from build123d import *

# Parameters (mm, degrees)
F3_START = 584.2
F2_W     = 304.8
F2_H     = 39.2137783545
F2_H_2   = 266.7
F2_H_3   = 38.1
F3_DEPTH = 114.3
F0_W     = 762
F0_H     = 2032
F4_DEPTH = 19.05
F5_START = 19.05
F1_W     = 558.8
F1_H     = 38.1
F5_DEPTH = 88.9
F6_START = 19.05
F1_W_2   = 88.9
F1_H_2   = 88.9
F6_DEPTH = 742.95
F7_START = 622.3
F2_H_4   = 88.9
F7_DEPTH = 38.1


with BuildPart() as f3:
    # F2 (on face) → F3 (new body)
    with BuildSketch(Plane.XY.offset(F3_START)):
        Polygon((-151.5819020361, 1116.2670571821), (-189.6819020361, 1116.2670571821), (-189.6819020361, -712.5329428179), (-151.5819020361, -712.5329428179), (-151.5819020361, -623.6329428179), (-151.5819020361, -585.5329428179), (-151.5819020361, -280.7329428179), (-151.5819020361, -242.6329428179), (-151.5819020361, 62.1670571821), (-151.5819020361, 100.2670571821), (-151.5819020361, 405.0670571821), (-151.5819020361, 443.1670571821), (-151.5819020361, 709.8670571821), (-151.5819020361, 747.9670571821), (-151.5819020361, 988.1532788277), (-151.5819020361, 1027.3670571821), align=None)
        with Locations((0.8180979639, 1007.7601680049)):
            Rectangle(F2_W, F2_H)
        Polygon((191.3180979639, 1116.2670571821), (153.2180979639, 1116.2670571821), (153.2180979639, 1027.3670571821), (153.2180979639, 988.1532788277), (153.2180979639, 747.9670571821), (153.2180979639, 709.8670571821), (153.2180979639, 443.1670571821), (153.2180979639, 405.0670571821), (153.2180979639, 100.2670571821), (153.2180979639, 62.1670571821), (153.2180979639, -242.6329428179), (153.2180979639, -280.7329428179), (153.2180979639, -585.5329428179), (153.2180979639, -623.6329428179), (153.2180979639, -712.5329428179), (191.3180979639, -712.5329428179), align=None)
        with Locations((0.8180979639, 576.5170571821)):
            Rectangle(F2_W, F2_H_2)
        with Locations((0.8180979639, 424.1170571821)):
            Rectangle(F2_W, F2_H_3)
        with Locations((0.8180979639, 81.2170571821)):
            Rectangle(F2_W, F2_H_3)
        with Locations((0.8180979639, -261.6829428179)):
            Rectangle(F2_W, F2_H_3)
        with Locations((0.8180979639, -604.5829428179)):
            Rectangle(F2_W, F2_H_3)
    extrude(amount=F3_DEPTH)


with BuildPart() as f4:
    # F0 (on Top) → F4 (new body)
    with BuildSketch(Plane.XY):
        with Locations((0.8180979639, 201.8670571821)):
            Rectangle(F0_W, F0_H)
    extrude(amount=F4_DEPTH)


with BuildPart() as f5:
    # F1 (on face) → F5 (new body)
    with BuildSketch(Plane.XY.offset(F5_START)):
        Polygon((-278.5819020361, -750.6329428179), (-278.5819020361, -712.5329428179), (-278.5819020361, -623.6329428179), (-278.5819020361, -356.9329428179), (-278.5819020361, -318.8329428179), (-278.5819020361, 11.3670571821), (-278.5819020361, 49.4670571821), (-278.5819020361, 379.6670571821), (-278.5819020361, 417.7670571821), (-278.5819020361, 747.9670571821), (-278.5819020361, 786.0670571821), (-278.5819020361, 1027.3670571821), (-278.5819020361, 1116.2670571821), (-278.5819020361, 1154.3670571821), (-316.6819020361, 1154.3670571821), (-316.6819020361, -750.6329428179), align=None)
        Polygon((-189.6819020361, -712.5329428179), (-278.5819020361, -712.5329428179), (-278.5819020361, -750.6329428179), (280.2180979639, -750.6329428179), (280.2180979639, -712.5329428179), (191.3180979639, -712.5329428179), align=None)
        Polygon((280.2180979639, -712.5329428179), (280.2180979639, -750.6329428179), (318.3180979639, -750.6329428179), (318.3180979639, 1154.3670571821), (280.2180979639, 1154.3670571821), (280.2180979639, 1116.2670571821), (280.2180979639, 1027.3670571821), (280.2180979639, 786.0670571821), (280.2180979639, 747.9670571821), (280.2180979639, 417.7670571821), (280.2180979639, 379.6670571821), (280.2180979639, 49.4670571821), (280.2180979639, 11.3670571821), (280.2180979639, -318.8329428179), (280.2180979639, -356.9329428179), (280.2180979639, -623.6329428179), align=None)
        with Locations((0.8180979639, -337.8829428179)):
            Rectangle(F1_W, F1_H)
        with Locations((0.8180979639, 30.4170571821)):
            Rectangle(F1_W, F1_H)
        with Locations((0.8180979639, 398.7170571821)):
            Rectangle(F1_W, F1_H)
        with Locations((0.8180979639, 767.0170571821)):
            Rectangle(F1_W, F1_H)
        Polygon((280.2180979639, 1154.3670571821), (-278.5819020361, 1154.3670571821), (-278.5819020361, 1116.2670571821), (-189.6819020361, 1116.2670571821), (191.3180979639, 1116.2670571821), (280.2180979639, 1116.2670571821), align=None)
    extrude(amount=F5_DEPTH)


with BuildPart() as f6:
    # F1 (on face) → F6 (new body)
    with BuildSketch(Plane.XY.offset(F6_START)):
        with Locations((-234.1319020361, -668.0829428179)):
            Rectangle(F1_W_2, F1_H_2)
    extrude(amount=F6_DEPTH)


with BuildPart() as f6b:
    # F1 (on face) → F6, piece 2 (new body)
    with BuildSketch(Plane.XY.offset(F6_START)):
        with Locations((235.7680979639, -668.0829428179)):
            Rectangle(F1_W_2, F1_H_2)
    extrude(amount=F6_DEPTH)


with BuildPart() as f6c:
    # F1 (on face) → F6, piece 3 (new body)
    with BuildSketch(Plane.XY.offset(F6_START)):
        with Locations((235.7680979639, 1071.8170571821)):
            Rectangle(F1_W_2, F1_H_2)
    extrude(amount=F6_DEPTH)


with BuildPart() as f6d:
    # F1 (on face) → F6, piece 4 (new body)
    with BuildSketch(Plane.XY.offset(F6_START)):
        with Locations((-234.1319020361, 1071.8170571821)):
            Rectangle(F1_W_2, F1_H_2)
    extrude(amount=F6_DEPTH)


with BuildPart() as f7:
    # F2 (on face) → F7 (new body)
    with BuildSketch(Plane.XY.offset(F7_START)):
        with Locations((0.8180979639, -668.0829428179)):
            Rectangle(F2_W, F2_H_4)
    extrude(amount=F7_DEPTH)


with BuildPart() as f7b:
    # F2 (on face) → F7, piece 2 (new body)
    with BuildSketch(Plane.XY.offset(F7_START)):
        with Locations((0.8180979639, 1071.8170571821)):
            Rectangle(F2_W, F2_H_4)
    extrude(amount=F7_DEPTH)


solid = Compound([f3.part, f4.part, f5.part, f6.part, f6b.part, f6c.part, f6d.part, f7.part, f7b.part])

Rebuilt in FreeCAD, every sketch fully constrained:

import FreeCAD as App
import Part
import Sketcher

V = App.Vector
Q = App.Units.Quantity


def add_polygon(sketch, points):
    """Adds a closed chain of lines whose ends are joined by coincident constraints."""
    first, n = sketch.GeometryCount, len(points)
    for a, b in zip(points, points[1:] + points[:1]):
        sketch.addGeometry(Part.LineSegment(App.Vector(*a, 0), App.Vector(*b, 0)), False)
    for i in range(n):
        sketch.addConstraint(Sketcher.Constraint("Coincident", first + i, 2, first + (i + 1) % n, 1))

doc = App.newDocument("Part")
params = doc.addObject("Spreadsheet::Sheet", "Params")
for row, (alias, value) in enumerate([
    ("sketch1_width", "12 in"),
    ("sketch1_height", "72 in"),
    ("sketch1_width2", "1.5 in"),
    ("sketch1_height2", "3.5 in"),
    ("pad1_length", "4.5 in"),
    ("sketch2_width", "30 in"),
    ("sketch2_height", "80 in"),
    ("pad2_length", "0.75 in"),
    ("sketch3_width", "25 in"),
    ("sketch3_width2", "22 in"),
    ("sketch3_height", "75 in"),
    ("sketch3_height2", "14 in"),
    ("sketch3_height3", "13 in"),
    ("pad3_length", "3.5 in"),
    ("sketch4_width", "3.5 in"),
    ("pad4_length", "29.25 in"),
    ("sketch5_width", "3.5 in"),
    ("pad5_length", "29.25 in"),
    ("sketch6_width", "3.5 in"),
    ("pad6_length", "29.25 in"),
    ("sketch7_width", "3.5 in"),
    ("pad7_length", "29.25 in"),
    ("sketch8_width", "12 in"),
    ("sketch8_height", "3.5 in"),
    ("pad8_length", "1.5 in"),
    ("sketch9_width", "12 in"),
    ("sketch9_height", "3.5 in"),
    ("pad9_length", "1.5 in"),
], start=1):
    params.set(f"A{row}", alias)
    params.set(f"B{row}", "=" + value)
    params.setAlias(f"B{row}", alias)

body = doc.addObject("PartDesign::Body", "Body")

# Sketch on XY plane
sketch1 = doc.addObject("Sketcher::SketchObject", "Sketch")
body.addObject(sketch1)
sketch1.AttachmentSupport = (doc.XY_Plane, [""])
sketch1.MapMode = "FlatFace"
sketch1.AttachmentOffset = App.Placement(V(0, 0, 23 * 25.4), App.Rotation())
add_polygon(sketch1, [(-152, 1116), (-190, 1116), (-190, -713), (-152, -713), (-152, -624), (153, -624), (153, -713), (191, -713), (191, 1116), (153, 1116), (153, 1027), (-152, 1027)])  # lines 0-11
add_polygon(sketch1, [(-152, -586), (-152, -281), (153, -281), (153, -586)])  # lines 12-15
add_polygon(sketch1, [(-152, -243), (-152, 62), (153, 62), (153, -243)])  # lines 16-19
add_polygon(sketch1, [(-152, 100), (-152, 405), (153, 405), (153, 100)])  # lines 20-23
add_polygon(sketch1, [(-152, 710), (-152, 988), (153, 988), (153, 710)])  # lines 24-27
sketch1.addConstraint(Sketcher.Constraint("Horizontal", 0))
sketch1.addConstraint(Sketcher.Constraint("Vertical", 1))
sketch1.addConstraint(Sketcher.Constraint("Horizontal", 2))
sketch1.addConstraint(Sketcher.Constraint("Vertical", 3))
sketch1.addConstraint(Sketcher.Constraint("Horizontal", 4))
sketch1.addConstraint(Sketcher.Constraint("Vertical", 5))
sketch1.addConstraint(Sketcher.Constraint("Horizontal", 6))
sketch1.addConstraint(Sketcher.Constraint("Vertical", 7))
sketch1.addConstraint(Sketcher.Constraint("Horizontal", 8))
sketch1.addConstraint(Sketcher.Constraint("Vertical", 9))
sketch1.addConstraint(Sketcher.Constraint("Horizontal", 10))
sketch1.addConstraint(Sketcher.Constraint("Vertical", 11))
sketch1.addConstraint(Sketcher.Constraint("Vertical", 12))
sketch1.addConstraint(Sketcher.Constraint("Horizontal", 13))
sketch1.addConstraint(Sketcher.Constraint("Vertical", 14))
sketch1.addConstraint(Sketcher.Constraint("Horizontal", 15))
sketch1.addConstraint(Sketcher.Constraint("Vertical", 16))
sketch1.addConstraint(Sketcher.Constraint("Horizontal", 17))
sketch1.addConstraint(Sketcher.Constraint("Vertical", 18))
sketch1.addConstraint(Sketcher.Constraint("Horizontal", 19))
sketch1.addConstraint(Sketcher.Constraint("Vertical", 20))
sketch1.addConstraint(Sketcher.Constraint("Horizontal", 21))
sketch1.addConstraint(Sketcher.Constraint("Vertical", 22))
sketch1.addConstraint(Sketcher.Constraint("Horizontal", 23))
sketch1.addConstraint(Sketcher.Constraint("Vertical", 24))
sketch1.addConstraint(Sketcher.Constraint("Horizontal", 25))
sketch1.addConstraint(Sketcher.Constraint("Vertical", 26))
sketch1.addConstraint(Sketcher.Constraint("Horizontal", 27))
sketch1.addConstraint(Sketcher.Constraint("Horizontal", 2, 2, 5, 2))
sketch1.addConstraint(Sketcher.Constraint("Horizontal", 0, 2, 7, 2))
sketch1.addConstraint(Sketcher.Constraint("Vertical", 5, 2, 8, 2))
sketch1.addConstraint(Sketcher.Constraint("Vertical", 3, 2, 10, 2))
sketch1.addConstraint(Sketcher.Constraint("Vertical", 11, 2, 12, 2))
sketch1.addConstraint(Sketcher.Constraint("Vertical", 9, 2, 13, 2))
sketch1.addConstraint(Sketcher.Constraint("Vertical", 15, 2, 16, 2))
sketch1.addConstraint(Sketcher.Constraint("Vertical", 14, 2, 17, 2))
sketch1.addConstraint(Sketcher.Constraint("Vertical", 19, 2, 20, 2))
sketch1.addConstraint(Sketcher.Constraint("Vertical", 18, 2, 21, 2))
sketch1.addConstraint(Sketcher.Constraint("Vertical", 23, 2, 24, 2))
sketch1.addConstraint(Sketcher.Constraint("Vertical", 22, 2, 25, 2))
sketch1.addConstraint(Sketcher.Constraint("Equal", 2, 6))
sketch1.addConstraint(Sketcher.Constraint("Equal", 5, 9))
sketch1.addConstraint(Sketcher.Constraint("Equal", 27, 12))
sketch1.addConstraint(Sketcher.Constraint("Equal", 14, 16))
sketch1.addConstraint(Sketcher.Constraint("Equal", 18, 20))
sketch1.addConstraint(Sketcher.Constraint("DistanceX", 4, 1, 4, 2, Q("12 in")))
sketch1.addConstraint(Sketcher.Constraint("DistanceY", 1, 2, 1, 1, Q("72 in")))
sketch1.addConstraint(Sketcher.Constraint("DistanceX", 0, 2, 0, 1, Q("1.5 in")))
sketch1.addConstraint(Sketcher.Constraint("DistanceY", 3, 1, 3, 2, Q("3.5 in")))
sketch1.addConstraint(Sketcher.Constraint("DistanceY", 2, 2, 12, 2, Q("17 in")))
sketch1.addConstraint(Sketcher.Constraint("DistanceY", 3, 2, 16, 2, Q("27 in")))
sketch1.addConstraint(Sketcher.Constraint("DistanceY", 12, 2, 20, 2, Q("27 in")))
sketch1.addConstraint(Sketcher.Constraint("DistanceY", 21, 2, 26, 2, Q("12 in")))
sketch1.addConstraint(Sketcher.Constraint("DistanceY", 24, 1, 24, 2, 278.286222))
sketch1.addConstraint(Sketcher.Constraint("DistanceY", -1, 1, 24, 2, 988.153279))
sketch1.addConstraint(Sketcher.Constraint("DistanceX", 0, 2, -1, 1, 189.681902))
sketch1.setExpression("Constraints[73]", "Params.sketch1_width")
sketch1.setExpression("Constraints[74]", "Params.sketch1_height")
sketch1.setExpression("Constraints[75]", "Params.sketch1_width2")
sketch1.setExpression("Constraints[76]", "Params.sketch1_height2")
pad1 = doc.addObject("PartDesign::Pad", "Pad")
body.addObject(pad1)
pad1.Profile = sketch1
pad1.setExpression("Length", "Params.pad1_length")
body2 = doc.addObject("PartDesign::Body", "Body001")

# Sketch on XY plane
sketch2 = doc.addObject("Sketcher::SketchObject", "Sketch001")
body2.addObject(sketch2)
sketch2.AttachmentSupport = (doc.getObject("XY_Plane001"), [""])
sketch2.MapMode = "FlatFace"
add_polygon(sketch2, [(-380, 1218), (-380, -814), (382, -814), (382, 1218)])  # lines 0-3
sketch2.addConstraint(Sketcher.Constraint("Vertical", 0))
sketch2.addConstraint(Sketcher.Constraint("Horizontal", 1))
sketch2.addConstraint(Sketcher.Constraint("Vertical", 2))
sketch2.addConstraint(Sketcher.Constraint("Horizontal", 3))
sketch2.addConstraint(Sketcher.Constraint("DistanceX", 1, 1, 1, 2, Q("30 in")))
sketch2.addConstraint(Sketcher.Constraint("DistanceY", 0, 2, 0, 1, Q("80 in")))
sketch2.addConstraint(Sketcher.Constraint("DistanceX", 0, 2, -1, 1, 380.181902))
sketch2.addConstraint(Sketcher.Constraint("DistanceY", 0, 2, -1, 1, 814.132943))
sketch2.setExpression("Constraints[8]", "Params.sketch2_width")
sketch2.setExpression("Constraints[9]", "Params.sketch2_height")
pad2 = doc.addObject("PartDesign::Pad", "Pad001")
body2.addObject(pad2)
pad2.Profile = sketch2
pad2.setExpression("Length", "Params.pad2_length")
body3 = doc.addObject("PartDesign::Body", "Body002")

# Sketch on XY plane
sketch3 = doc.addObject("Sketcher::SketchObject", "Sketch002")
body3.addObject(sketch3)
sketch3.AttachmentSupport = (doc.getObject("XY_Plane002"), [""])
sketch3.MapMode = "FlatFace"
sketch3.AttachmentOffset = App.Placement(V(0, 0, 0.75 * 25.4), App.Rotation())
add_polygon(sketch3, [(-317, 1154), (-317, -751), (318, -751), (318, 1154)])  # lines 0-3
add_polygon(sketch3, [(-279, -713), (-279, -357), (280, -357), (280, -713)])  # lines 4-7
add_polygon(sketch3, [(-279, -319), (-279, 11), (280, 11), (280, -319)])  # lines 8-11
add_polygon(sketch3, [(-279, 49), (-279, 380), (280, 380), (280, 49)])  # lines 12-15
add_polygon(sketch3, [(-279, 418), (-279, 748), (280, 748), (280, 418)])  # lines 16-19
add_polygon(sketch3, [(-279, 786), (-279, 1116), (280, 1116), (280, 786)])  # lines 20-23
sketch3.addConstraint(Sketcher.Constraint("Vertical", 0))
sketch3.addConstraint(Sketcher.Constraint("Horizontal", 1))
sketch3.addConstraint(Sketcher.Constraint("Vertical", 2))
sketch3.addConstraint(Sketcher.Constraint("Horizontal", 3))
sketch3.addConstraint(Sketcher.Constraint("Vertical", 4))
sketch3.addConstraint(Sketcher.Constraint("Horizontal", 5))
sketch3.addConstraint(Sketcher.Constraint("Vertical", 6))
sketch3.addConstraint(Sketcher.Constraint("Horizontal", 7))
sketch3.addConstraint(Sketcher.Constraint("Vertical", 8))
sketch3.addConstraint(Sketcher.Constraint("Horizontal", 9))
sketch3.addConstraint(Sketcher.Constraint("Vertical", 10))
sketch3.addConstraint(Sketcher.Constraint("Horizontal", 11))
sketch3.addConstraint(Sketcher.Constraint("Vertical", 12))
sketch3.addConstraint(Sketcher.Constraint("Horizontal", 13))
sketch3.addConstraint(Sketcher.Constraint("Vertical", 14))
sketch3.addConstraint(Sketcher.Constraint("Horizontal", 15))
sketch3.addConstraint(Sketcher.Constraint("Vertical", 16))
sketch3.addConstraint(Sketcher.Constraint("Horizontal", 17))
sketch3.addConstraint(Sketcher.Constraint("Vertical", 18))
sketch3.addConstraint(Sketcher.Constraint("Horizontal", 19))
sketch3.addConstraint(Sketcher.Constraint("Vertical", 20))
sketch3.addConstraint(Sketcher.Constraint("Horizontal", 21))
sketch3.addConstraint(Sketcher.Constraint("Vertical", 22))
sketch3.addConstraint(Sketcher.Constraint("Horizontal", 23))
sketch3.addConstraint(Sketcher.Constraint("Vertical", 7, 2, 8, 2))
sketch3.addConstraint(Sketcher.Constraint("Vertical", 6, 2, 9, 2))
sketch3.addConstraint(Sketcher.Constraint("Vertical", 11, 2, 12, 2))
sketch3.addConstraint(Sketcher.Constraint("Vertical", 10, 2, 13, 2))
sketch3.addConstraint(Sketcher.Constraint("Vertical", 15, 2, 16, 2))
sketch3.addConstraint(Sketcher.Constraint("Vertical", 14, 2, 17, 2))
sketch3.addConstraint(Sketcher.Constraint("Vertical", 19, 2, 20, 2))
sketch3.addConstraint(Sketcher.Constraint("Vertical", 18, 2, 21, 2))
sketch3.addConstraint(Sketcher.Constraint("Equal", 10, 12))
sketch3.addConstraint(Sketcher.Constraint("Equal", 14, 16))
sketch3.addConstraint(Sketcher.Constraint("Equal", 18, 20))
sketch3.addConstraint(Sketcher.Constraint("DistanceX", 1, 1, 1, 2, Q("25 in")))
sketch3.addConstraint(Sketcher.Constraint("DistanceX", 5, 1, 5, 2, Q("22 in")))
sketch3.addConstraint(Sketcher.Constraint("DistanceY", 0, 2, 0, 1, Q("75 in")))
sketch3.addConstraint(Sketcher.Constraint("DistanceY", 4, 1, 4, 2, Q("14 in")))
sketch3.addConstraint(Sketcher.Constraint("DistanceY", 8, 1, 8, 2, Q("13 in")))
sketch3.addConstraint(Sketcher.Constraint("DistanceY", 0, 2, 8, 2, Q("30 in")))
sketch3.addConstraint(Sketcher.Constraint("DistanceY", 4, 2, 12, 2, Q("29 in")))
sketch3.addConstraint(Sketcher.Constraint("DistanceY", 16, 2, 3, 2, Q("16 in")))
sketch3.addConstraint(Sketcher.Constraint("DistanceY", 13, 2, 22, 2, Q("16 in")))
sketch3.addConstraint(Sketcher.Constraint("DistanceX", 0, 2, 4, 2, Q("1.5 in")))
sketch3.addConstraint(Sketcher.Constraint("DistanceY", 0, 2, 4, 2, Q("15.5 in")))
sketch3.addConstraint(Sketcher.Constraint("DistanceX", 0, 2, -1, 1, 316.681902))
sketch3.addConstraint(Sketcher.Constraint("DistanceY", 0, 2, -1, 1, 750.632943))
sketch3.setExpression("Constraints[59]", "Params.sketch3_width")
sketch3.setExpression("Constraints[60]", "Params.sketch3_width2")
sketch3.setExpression("Constraints[61]", "Params.sketch3_height")
sketch3.setExpression("Constraints[62]", "Params.sketch3_height2")
sketch3.setExpression("Constraints[63]", "Params.sketch3_height3")
pad3 = doc.addObject("PartDesign::Pad", "Pad002")
body3.addObject(pad3)
pad3.Profile = sketch3
pad3.setExpression("Length", "Params.pad3_length")
body4 = doc.addObject("PartDesign::Body", "Body003")

# Sketch on XY plane
sketch4 = doc.addObject("Sketcher::SketchObject", "Sketch003")
body4.addObject(sketch4)
sketch4.AttachmentSupport = (doc.getObject("XY_Plane003"), [""])
sketch4.MapMode = "FlatFace"
sketch4.AttachmentOffset = App.Placement(V(0, 0, 0.75 * 25.4), App.Rotation())
add_polygon(sketch4, [(-279, -624), (-279, -713), (-190, -713), (-190, -624)])  # lines 0-3
sketch4.addConstraint(Sketcher.Constraint("Vertical", 0))
sketch4.addConstraint(Sketcher.Constraint("Horizontal", 1))
sketch4.addConstraint(Sketcher.Constraint("Vertical", 2))
sketch4.addConstraint(Sketcher.Constraint("Horizontal", 3))
sketch4.addConstraint(Sketcher.Constraint("Equal", 3, 0))
sketch4.addConstraint(Sketcher.Constraint("DistanceX", 1, 1, 1, 2, Q("3.5 in")))
sketch4.addConstraint(Sketcher.Constraint("DistanceX", 0, 2, -1, 1, 278.581902))
sketch4.addConstraint(Sketcher.Constraint("DistanceY", 0, 2, -1, 1, 712.532943))
sketch4.setExpression("Constraints[9]", "Params.sketch4_width")
pad4 = doc.addObject("PartDesign::Pad", "Pad003")
body4.addObject(pad4)
pad4.Profile = sketch4
pad4.setExpression("Length", "Params.pad4_length")
body5 = doc.addObject("PartDesign::Body", "Body004")

# Sketch on XY plane
sketch5 = doc.addObject("Sketcher::SketchObject", "Sketch004")
body5.addObject(sketch5)
sketch5.AttachmentSupport = (doc.getObject("XY_Plane004"), [""])
sketch5.MapMode = "FlatFace"
sketch5.AttachmentOffset = App.Placement(V(0, 0, 0.75 * 25.4), App.Rotation())
add_polygon(sketch5, [(191, -624), (191, -713), (280, -713), (280, -624)])  # lines 0-3
sketch5.addConstraint(Sketcher.Constraint("Vertical", 0))
sketch5.addConstraint(Sketcher.Constraint("Horizontal", 1))
sketch5.addConstraint(Sketcher.Constraint("Vertical", 2))
sketch5.addConstraint(Sketcher.Constraint("Horizontal", 3))
sketch5.addConstraint(Sketcher.Constraint("Equal", 3, 0))
sketch5.addConstraint(Sketcher.Constraint("DistanceX", 1, 1, 1, 2, Q("3.5 in")))
sketch5.addConstraint(Sketcher.Constraint("DistanceX", -1, 1, 0, 2, 191.318098))
sketch5.addConstraint(Sketcher.Constraint("DistanceY", 0, 2, -1, 1, 712.532943))
sketch5.setExpression("Constraints[9]", "Params.sketch5_width")
pad5 = doc.addObject("PartDesign::Pad", "Pad004")
body5.addObject(pad5)
pad5.Profile = sketch5
pad5.setExpression("Length", "Params.pad5_length")
body6 = doc.addObject("PartDesign::Body", "Body005")

# Sketch on XY plane
sketch6 = doc.addObject("Sketcher::SketchObject", "Sketch005")
body6.addObject(sketch6)
sketch6.AttachmentSupport = (doc.getObject("XY_Plane005"), [""])
sketch6.MapMode = "FlatFace"
sketch6.AttachmentOffset = App.Placement(V(0, 0, 0.75 * 25.4), App.Rotation())
add_polygon(sketch6, [(191, 1116), (191, 1027), (280, 1027), (280, 1116)])  # lines 0-3
sketch6.addConstraint(Sketcher.Constraint("Vertical", 0))
sketch6.addConstraint(Sketcher.Constraint("Horizontal", 1))
sketch6.addConstraint(Sketcher.Constraint("Vertical", 2))
sketch6.addConstraint(Sketcher.Constraint("Horizontal", 3))
sketch6.addConstraint(Sketcher.Constraint("Equal", 3, 0))
sketch6.addConstraint(Sketcher.Constraint("DistanceX", 1, 1, 1, 2, Q("3.5 in")))
sketch6.addConstraint(Sketcher.Constraint("DistanceX", -1, 1, 0, 2, 191.318098))
sketch6.addConstraint(Sketcher.Constraint("DistanceY", -1, 1, 0, 2, 1027.367057))
sketch6.setExpression("Constraints[9]", "Params.sketch6_width")
pad6 = doc.addObject("PartDesign::Pad", "Pad005")
body6.addObject(pad6)
pad6.Profile = sketch6
pad6.setExpression("Length", "Params.pad6_length")
body7 = doc.addObject("PartDesign::Body", "Body006")

# Sketch on XY plane
sketch7 = doc.addObject("Sketcher::SketchObject", "Sketch006")
body7.addObject(sketch7)
sketch7.AttachmentSupport = (doc.getObject("XY_Plane006"), [""])
sketch7.MapMode = "FlatFace"
sketch7.AttachmentOffset = App.Placement(V(0, 0, 0.75 * 25.4), App.Rotation())
add_polygon(sketch7, [(-279, 1116), (-279, 1027), (-190, 1027), (-190, 1116)])  # lines 0-3
sketch7.addConstraint(Sketcher.Constraint("Vertical", 0))
sketch7.addConstraint(Sketcher.Constraint("Horizontal", 1))
sketch7.addConstraint(Sketcher.Constraint("Vertical", 2))
sketch7.addConstraint(Sketcher.Constraint("Horizontal", 3))
sketch7.addConstraint(Sketcher.Constraint("Equal", 3, 0))
sketch7.addConstraint(Sketcher.Constraint("DistanceX", 1, 1, 1, 2, Q("3.5 in")))
sketch7.addConstraint(Sketcher.Constraint("DistanceX", 0, 2, -1, 1, 278.581902))
sketch7.addConstraint(Sketcher.Constraint("DistanceY", -1, 1, 0, 2, 1027.367057))
sketch7.setExpression("Constraints[9]", "Params.sketch7_width")
pad7 = doc.addObject("PartDesign::Pad", "Pad006")
body7.addObject(pad7)
pad7.Profile = sketch7
pad7.setExpression("Length", "Params.pad7_length")
body8 = doc.addObject("PartDesign::Body", "Body007")

# Sketch on XY plane
sketch8 = doc.addObject("Sketcher::SketchObject", "Sketch007")
body8.addObject(sketch8)
sketch8.AttachmentSupport = (doc.getObject("XY_Plane007"), [""])
sketch8.MapMode = "FlatFace"
sketch8.AttachmentOffset = App.Placement(V(0, 0, 24.5 * 25.4), App.Rotation())
add_polygon(sketch8, [(-152, -624), (-152, -713), (153, -713), (153, -624)])  # lines 0-3
sketch8.addConstraint(Sketcher.Constraint("Vertical", 0))
sketch8.addConstraint(Sketcher.Constraint("Horizontal", 1))
sketch8.addConstraint(Sketcher.Constraint("Vertical", 2))
sketch8.addConstraint(Sketcher.Constraint("Horizontal", 3))
sketch8.addConstraint(Sketcher.Constraint("DistanceX", 1, 1, 1, 2, Q("12 in")))
sketch8.addConstraint(Sketcher.Constraint("DistanceY", 0, 2, 0, 1, Q("3.5 in")))
sketch8.addConstraint(Sketcher.Constraint("DistanceX", 0, 2, -1, 1, 151.581902))
sketch8.addConstraint(Sketcher.Constraint("DistanceY", 0, 2, -1, 1, 712.532943))
sketch8.setExpression("Constraints[8]", "Params.sketch8_width")
sketch8.setExpression("Constraints[9]", "Params.sketch8_height")
pad8 = doc.addObject("PartDesign::Pad", "Pad007")
body8.addObject(pad8)
pad8.Profile = sketch8
pad8.setExpression("Length", "Params.pad8_length")
body9 = doc.addObject("PartDesign::Body", "Body008")

# Sketch on XY plane
sketch9 = doc.addObject("Sketcher::SketchObject", "Sketch008")
body9.addObject(sketch9)
sketch9.AttachmentSupport = (doc.getObject("XY_Plane008"), [""])
sketch9.MapMode = "FlatFace"
sketch9.AttachmentOffset = App.Placement(V(0, 0, 24.5 * 25.4), App.Rotation())
add_polygon(sketch9, [(-152, 1116), (-152, 1027), (153, 1027), (153, 1116)])  # lines 0-3
sketch9.addConstraint(Sketcher.Constraint("Vertical", 0))
sketch9.addConstraint(Sketcher.Constraint("Horizontal", 1))
sketch9.addConstraint(Sketcher.Constraint("Vertical", 2))
sketch9.addConstraint(Sketcher.Constraint("Horizontal", 3))
sketch9.addConstraint(Sketcher.Constraint("DistanceX", 1, 1, 1, 2, Q("12 in")))
sketch9.addConstraint(Sketcher.Constraint("DistanceY", 0, 2, 0, 1, Q("3.5 in")))
sketch9.addConstraint(Sketcher.Constraint("DistanceX", 0, 2, -1, 1, 151.581902))
sketch9.addConstraint(Sketcher.Constraint("DistanceY", -1, 1, 0, 2, 1027.367057))
sketch9.setExpression("Constraints[8]", "Params.sketch9_width")
sketch9.setExpression("Constraints[9]", "Params.sketch9_height")
pad9 = doc.addObject("PartDesign::Pad", "Pad008")
body9.addObject(pad9)
pad9.Profile = sketch9
pad9.setExpression("Length", "Params.pad9_length")

doc.recompute()
